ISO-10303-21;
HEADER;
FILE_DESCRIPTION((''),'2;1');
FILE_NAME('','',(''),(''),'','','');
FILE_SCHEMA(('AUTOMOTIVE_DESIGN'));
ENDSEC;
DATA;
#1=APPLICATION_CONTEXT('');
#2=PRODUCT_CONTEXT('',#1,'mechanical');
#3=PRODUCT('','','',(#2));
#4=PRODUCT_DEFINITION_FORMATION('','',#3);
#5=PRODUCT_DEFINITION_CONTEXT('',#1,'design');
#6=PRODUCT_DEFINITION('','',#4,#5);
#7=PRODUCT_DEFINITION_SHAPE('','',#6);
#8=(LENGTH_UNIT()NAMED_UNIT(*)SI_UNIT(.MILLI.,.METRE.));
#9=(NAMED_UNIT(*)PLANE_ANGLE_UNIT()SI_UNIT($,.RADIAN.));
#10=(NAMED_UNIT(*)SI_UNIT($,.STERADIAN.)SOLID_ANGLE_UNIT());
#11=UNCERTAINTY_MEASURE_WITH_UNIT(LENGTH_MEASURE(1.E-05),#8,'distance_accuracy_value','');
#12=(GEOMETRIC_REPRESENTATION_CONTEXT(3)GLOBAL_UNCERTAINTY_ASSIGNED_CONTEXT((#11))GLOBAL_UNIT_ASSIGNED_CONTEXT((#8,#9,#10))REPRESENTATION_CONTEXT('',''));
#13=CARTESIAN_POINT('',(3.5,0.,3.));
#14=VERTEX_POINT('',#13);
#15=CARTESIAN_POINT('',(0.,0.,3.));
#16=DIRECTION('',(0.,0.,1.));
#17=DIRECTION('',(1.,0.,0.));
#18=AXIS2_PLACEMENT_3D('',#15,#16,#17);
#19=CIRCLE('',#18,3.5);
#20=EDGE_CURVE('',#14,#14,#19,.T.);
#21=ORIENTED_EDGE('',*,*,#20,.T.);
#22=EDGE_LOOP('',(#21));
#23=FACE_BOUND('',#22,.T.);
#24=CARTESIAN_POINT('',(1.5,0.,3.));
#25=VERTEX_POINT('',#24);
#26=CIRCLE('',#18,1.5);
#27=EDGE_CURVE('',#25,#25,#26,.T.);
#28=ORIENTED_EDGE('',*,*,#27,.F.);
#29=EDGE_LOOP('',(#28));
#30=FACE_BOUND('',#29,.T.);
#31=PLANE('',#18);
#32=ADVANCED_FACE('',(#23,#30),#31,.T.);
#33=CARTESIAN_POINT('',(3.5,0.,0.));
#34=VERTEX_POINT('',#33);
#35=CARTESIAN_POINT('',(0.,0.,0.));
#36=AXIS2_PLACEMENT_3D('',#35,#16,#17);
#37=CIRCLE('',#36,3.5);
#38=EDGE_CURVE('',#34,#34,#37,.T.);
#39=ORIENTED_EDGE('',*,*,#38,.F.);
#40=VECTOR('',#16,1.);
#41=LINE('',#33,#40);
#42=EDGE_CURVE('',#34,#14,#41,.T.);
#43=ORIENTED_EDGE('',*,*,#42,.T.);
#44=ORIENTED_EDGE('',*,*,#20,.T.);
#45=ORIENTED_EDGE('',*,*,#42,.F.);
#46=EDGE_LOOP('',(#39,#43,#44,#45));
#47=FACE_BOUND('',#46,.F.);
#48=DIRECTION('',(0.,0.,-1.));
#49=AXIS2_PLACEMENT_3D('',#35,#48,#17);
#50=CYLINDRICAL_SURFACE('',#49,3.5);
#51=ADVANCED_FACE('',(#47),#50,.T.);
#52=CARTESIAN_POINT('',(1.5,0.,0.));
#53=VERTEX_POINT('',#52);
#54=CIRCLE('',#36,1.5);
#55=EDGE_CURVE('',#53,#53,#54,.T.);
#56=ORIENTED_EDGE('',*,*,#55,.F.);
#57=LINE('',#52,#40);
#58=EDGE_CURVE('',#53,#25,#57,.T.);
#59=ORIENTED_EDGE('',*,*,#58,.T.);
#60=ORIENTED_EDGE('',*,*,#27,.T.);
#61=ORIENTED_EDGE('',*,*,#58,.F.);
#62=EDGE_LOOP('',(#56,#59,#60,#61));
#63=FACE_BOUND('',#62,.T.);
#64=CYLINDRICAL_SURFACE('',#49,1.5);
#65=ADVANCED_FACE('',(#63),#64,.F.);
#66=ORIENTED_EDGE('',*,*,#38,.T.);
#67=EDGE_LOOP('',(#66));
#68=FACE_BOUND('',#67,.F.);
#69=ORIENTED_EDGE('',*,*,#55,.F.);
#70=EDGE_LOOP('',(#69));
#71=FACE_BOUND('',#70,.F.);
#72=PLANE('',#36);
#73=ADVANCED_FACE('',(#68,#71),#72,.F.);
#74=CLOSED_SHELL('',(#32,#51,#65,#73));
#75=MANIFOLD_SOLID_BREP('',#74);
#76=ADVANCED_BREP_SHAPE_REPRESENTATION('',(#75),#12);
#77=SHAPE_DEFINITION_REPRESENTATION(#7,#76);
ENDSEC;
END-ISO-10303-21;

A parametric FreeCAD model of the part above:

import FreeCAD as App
import Part
import Sketcher
from FreeCAD import Vector
Q = App.Units.Quantity

doc = App.newDocument("Part")
body = doc.addObject("PartDesign::Body", "Body")

# Sketch on XY plane
sketch1 = doc.addObject("Sketcher::SketchObject", "Sketch")
body.addObject(sketch1)
sketch1.AttachmentSupport = (doc.XY_Plane, [""])
sketch1.MapMode = "FlatFace"
sketch1.addGeometry([
    Part.Circle(Vector(0, 0, 0), Vector(0, 0, 1), 3.5),
    Part.Circle(Vector(0, 0, 0), Vector(0, 0, 1), 1.5),
], False)
sketch1.addConstraint([
    Sketcher.Constraint("Coincident", 0, 3, -1, 1),
    Sketcher.Constraint("Coincident", 1, 3, -1, 1),
    Sketcher.Constraint("Diameter", 0, Q("7 mm")),
    Sketcher.Constraint("Diameter", 1, Q("3 mm")),
])
pad1 = doc.addObject("PartDesign::Pad", "Pad")
body.addObject(pad1)
pad1.Profile = sketch1
pad1.Length = 3

doc.recompute()
